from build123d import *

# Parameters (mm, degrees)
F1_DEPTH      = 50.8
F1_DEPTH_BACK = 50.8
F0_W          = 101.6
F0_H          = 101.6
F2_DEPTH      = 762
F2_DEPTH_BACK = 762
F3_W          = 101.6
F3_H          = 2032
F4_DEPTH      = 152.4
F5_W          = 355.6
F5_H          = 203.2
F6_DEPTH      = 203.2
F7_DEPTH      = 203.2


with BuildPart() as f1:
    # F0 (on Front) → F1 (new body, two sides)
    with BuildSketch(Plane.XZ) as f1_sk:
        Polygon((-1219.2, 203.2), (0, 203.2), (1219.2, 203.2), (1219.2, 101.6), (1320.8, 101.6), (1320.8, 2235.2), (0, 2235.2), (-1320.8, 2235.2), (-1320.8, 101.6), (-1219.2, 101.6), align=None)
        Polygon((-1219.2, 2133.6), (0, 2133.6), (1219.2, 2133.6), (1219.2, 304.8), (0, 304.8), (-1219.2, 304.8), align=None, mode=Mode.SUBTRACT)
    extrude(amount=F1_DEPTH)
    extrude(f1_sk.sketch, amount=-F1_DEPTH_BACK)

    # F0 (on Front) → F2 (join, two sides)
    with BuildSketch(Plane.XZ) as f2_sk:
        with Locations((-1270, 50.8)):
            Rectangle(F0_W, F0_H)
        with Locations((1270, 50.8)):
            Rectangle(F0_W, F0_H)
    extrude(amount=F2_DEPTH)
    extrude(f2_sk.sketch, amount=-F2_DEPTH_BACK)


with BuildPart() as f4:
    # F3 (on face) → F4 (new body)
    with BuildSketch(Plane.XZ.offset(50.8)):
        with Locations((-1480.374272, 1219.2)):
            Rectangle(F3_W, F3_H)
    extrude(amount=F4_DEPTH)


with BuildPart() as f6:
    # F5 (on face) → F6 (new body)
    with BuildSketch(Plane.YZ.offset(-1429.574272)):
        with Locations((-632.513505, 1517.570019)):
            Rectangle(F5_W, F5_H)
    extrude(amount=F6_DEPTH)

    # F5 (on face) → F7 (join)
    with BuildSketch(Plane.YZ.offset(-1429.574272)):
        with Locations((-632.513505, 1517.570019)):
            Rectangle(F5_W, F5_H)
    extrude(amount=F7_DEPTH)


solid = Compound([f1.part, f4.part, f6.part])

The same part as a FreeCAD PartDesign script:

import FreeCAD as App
import Part
import Sketcher

V = App.Vector
Q = App.Units.Quantity


def add_polygon(sketch, points):
    """Adds a closed chain of lines whose ends are joined by coincident constraints."""
    first, n = sketch.GeometryCount, len(points)
    for a, b in zip(points, points[1:] + points[:1]):
        sketch.addGeometry(Part.LineSegment(App.Vector(*a, 0), App.Vector(*b, 0)), False)
    for i in range(n):
        sketch.addConstraint(Sketcher.Constraint("Coincident", first + i, 2, first + (i + 1) % n, 1))

doc = App.newDocument("Part")
body = doc.addObject("PartDesign::Body", "Body")

# Sketch on XZ plane
sketch1 = body.newObject("Sketcher::SketchObject", "Sketch")
sketch1.AttachmentSupport = (doc.getObject("XZ_Plane"), [""])
sketch1.MapMode = "FlatFace"
add_polygon(sketch1, [(-1219.2, 203.2), (1219.2, 203.2), (1219.2, 101.6), (1320.8, 101.6), (1320.8, 2235.2), (-1320.8, 2235.2), (-1320.8, 101.6), (-1219.2, 101.6)])  # lines 0-7
add_polygon(sketch1, [(-1219.2, 304.8), (-1219.2, 2133.6), (1219.2, 2133.6), (1219.2, 304.8)])  # lines 8-11
sketch1.addConstraint([
    Sketcher.Constraint("Horizontal", 0),
    Sketcher.Constraint("Vertical", 1),
    Sketcher.Constraint("Horizontal", 2),
    Sketcher.Constraint("Vertical", 3),
    Sketcher.Constraint("Horizontal", 4),
    Sketcher.Constraint("Vertical", 5),
    Sketcher.Constraint("Horizontal", 6),
    Sketcher.Constraint("Vertical", 7),
    Sketcher.Constraint("Vertical", 8),
    Sketcher.Constraint("Horizontal", 9),
    Sketcher.Constraint("Vertical", 10),
    Sketcher.Constraint("Horizontal", 11),
    Sketcher.Constraint("Symmetric", 2, 2, 5, 2, -2),
    Sketcher.Constraint("Vertical", 7, 2, 8, 2),
    Sketcher.Constraint("Vertical", 1, 2, 9, 2),
    Sketcher.Constraint("Equal", 2, 6),
    Sketcher.Constraint("Equal", 6, 1),
    Sketcher.Constraint("DistanceX", 0, 1, 0, 2, Q("96 in")),
    Sketcher.Constraint("DistanceX", 2, 1, 2, 2, Q("4 in")),
    Sketcher.Constraint("DistanceY", 3, 1, 3, 2, Q("84 in")),
    Sketcher.Constraint("DistanceY", 8, 1, 8, 2, Q("72 in")),
    Sketcher.Constraint("DistanceY", -1, 1, 0, 2, Q("8 in")),
    Sketcher.Constraint("DistanceY", -1, 1, 8, 2, Q("84 in")),
])
pad1 = body.newObject("PartDesign::Pad", "Pad")
pad1.Profile = sketch1
pad1.Type = "TwoLengths"
pad1.Length = Q("2 in")
pad1.Length2 = Q("2 in")

# Sketch on XZ plane
sketch2 = body.newObject("Sketcher::SketchObject", "Sketch001")
sketch2.AttachmentSupport = (doc.getObject("XZ_Plane"), [""])
sketch2.MapMode = "FlatFace"
add_polygon(sketch2, [(-1320.8, 101.6), (-1320.8, 0), (-1219.2, 0), (-1219.2, 101.6)])  # lines 0-3
add_polygon(sketch2, [(1219.2, 101.6), (1219.2, 0), (1320.8, 0), (1320.8, 101.6)])  # lines 4-7
sketch2.addConstraint([
    Sketcher.Constraint("Vertical", 0),
    Sketcher.Constraint("Horizontal", 1),
    Sketcher.Constraint("Vertical", 2),
    Sketcher.Constraint("Horizontal", 3),
    Sketcher.Constraint("Vertical", 4),
    Sketcher.Constraint("Horizontal", 5),
    Sketcher.Constraint("Vertical", 6),
    Sketcher.Constraint("Horizontal", 7),
    Sketcher.Constraint("Symmetric", 1, 2, 4, 2, -1, 1),
    Sketcher.Constraint("Symmetric", 0, 2, 5, 2, -2),
    Sketcher.Constraint("Horizontal", 3, 2, 6, 2),
    Sketcher.Constraint("Equal", 7, 0),
    Sketcher.Constraint("DistanceX", 1, 1, 1, 2, Q("4 in")),
    Sketcher.Constraint("DistanceX", 0, 2, -1, 1, Q("52 in")),
])
pad2 = body.newObject("PartDesign::Pad", "Pad001")
pad2.Profile = sketch2
pad2.Type = "TwoLengths"
pad2.Length = Q("30 in")
pad2.Length2 = Q("30 in")
body2 = doc.addObject("PartDesign::Body", "Body001")

# Sketch on XZ plane
sketch3 = body2.newObject("Sketcher::SketchObject", "Sketch002")
sketch3.AttachmentSupport = (doc.getObject("XZ_Plane001"), [""])
sketch3.MapMode = "FlatFace"
sketch3.AttachmentOffset = App.Placement(V(0, 0, 2 * 25.4), App.Rotation())
add_polygon(sketch3, [(-1531.174272, 2235.2), (-1531.174272, 203.2), (-1429.574272, 203.2), (-1429.574272, 2235.2)])  # lines 0-3
sketch3.addConstraint([
    Sketcher.Constraint("Vertical", 0),
    Sketcher.Constraint("Horizontal", 1),
    Sketcher.Constraint("Vertical", 2),
    Sketcher.Constraint("Horizontal", 3),
    Sketcher.Constraint("DistanceX", 1, 1, 1, 2, Q("4 in")),
    Sketcher.Constraint("DistanceY", 0, 2, 0, 1, Q("80 in")),
    Sketcher.Constraint("DistanceY", -1, 1, 0, 2, Q("8 in")),
    Sketcher.Constraint("DistanceX", 0, 2, -1, 1, Q("1531.174272 mm")),
])
pad3 = body2.newObject("PartDesign::Pad", "Pad002")
pad3.Profile = sketch3
pad3.Length = Q("6 in")
body3 = doc.addObject("PartDesign::Body", "Body002")

# Sketch on YZ plane
sketch4 = body3.newObject("Sketcher::SketchObject", "Sketch003")
sketch4.AttachmentSupport = (doc.getObject("YZ_Plane002"), [""])
sketch4.MapMode = "FlatFace"
sketch4.AttachmentOffset = App.Placement(V(0, 0, -1429.574272), App.Rotation())
add_polygon(sketch4, [(-810.313505, 1619.170019), (-810.313505, 1415.970019), (-454.713505, 1415.970019), (-454.713505, 1619.170019)])  # lines 0-3
sketch4.addConstraint([
    Sketcher.Constraint("Vertical", 0),
    Sketcher.Constraint("Horizontal", 1),
    Sketcher.Constraint("Vertical", 2),
    Sketcher.Constraint("Horizontal", 3),
    Sketcher.Constraint("DistanceX", 1, 1, 1, 2, Q("14 in")),
    Sketcher.Constraint("DistanceY", 0, 2, 0, 1, Q("8 in")),
    Sketcher.Constraint("DistanceY", -1, 1, 0, 2, Q("1415.970019 mm")),
    Sketcher.Constraint("DistanceX", 0, 2, -1, 1, Q("810.313505 mm")),
])
pad4 = body3.newObject("PartDesign::Pad", "Pad003")
pad4.Profile = sketch4
pad4.Length = Q("8 in")

# Sketch on YZ plane
sketch5 = body3.newObject("Sketcher::SketchObject", "Sketch004")
sketch5.AttachmentSupport = (doc.getObject("YZ_Plane002"), [""])
sketch5.MapMode = "FlatFace"
sketch5.AttachmentOffset = App.Placement(V(0, 0, -1429.574272), App.Rotation())
add_polygon(sketch5, [(-810.313505, 1619.170019), (-810.313505, 1415.970019), (-454.713505, 1415.970019), (-454.713505, 1619.170019)])  # lines 0-3
sketch5.addConstraint([
    Sketcher.Constraint("Vertical", 0),
    Sketcher.Constraint("Horizontal", 1),
    Sketcher.Constraint("Vertical", 2),
    Sketcher.Constraint("Horizontal", 3),
    Sketcher.Constraint("DistanceX", 1, 1, 1, 2, Q("14 in")),
    Sketcher.Constraint("DistanceY", 0, 2, 0, 1, Q("8 in")),
    Sketcher.Constraint("DistanceY", -1, 1, 0, 2, Q("1415.970019 mm")),
    Sketcher.Constraint("DistanceX", 0, 2, -1, 1, Q("810.313505 mm")),
])
pad5 = body3.newObject("PartDesign::Pad", "Pad004")
pad5.Profile = sketch5
pad5.Length = Q("8 in")

doc.recompute()
